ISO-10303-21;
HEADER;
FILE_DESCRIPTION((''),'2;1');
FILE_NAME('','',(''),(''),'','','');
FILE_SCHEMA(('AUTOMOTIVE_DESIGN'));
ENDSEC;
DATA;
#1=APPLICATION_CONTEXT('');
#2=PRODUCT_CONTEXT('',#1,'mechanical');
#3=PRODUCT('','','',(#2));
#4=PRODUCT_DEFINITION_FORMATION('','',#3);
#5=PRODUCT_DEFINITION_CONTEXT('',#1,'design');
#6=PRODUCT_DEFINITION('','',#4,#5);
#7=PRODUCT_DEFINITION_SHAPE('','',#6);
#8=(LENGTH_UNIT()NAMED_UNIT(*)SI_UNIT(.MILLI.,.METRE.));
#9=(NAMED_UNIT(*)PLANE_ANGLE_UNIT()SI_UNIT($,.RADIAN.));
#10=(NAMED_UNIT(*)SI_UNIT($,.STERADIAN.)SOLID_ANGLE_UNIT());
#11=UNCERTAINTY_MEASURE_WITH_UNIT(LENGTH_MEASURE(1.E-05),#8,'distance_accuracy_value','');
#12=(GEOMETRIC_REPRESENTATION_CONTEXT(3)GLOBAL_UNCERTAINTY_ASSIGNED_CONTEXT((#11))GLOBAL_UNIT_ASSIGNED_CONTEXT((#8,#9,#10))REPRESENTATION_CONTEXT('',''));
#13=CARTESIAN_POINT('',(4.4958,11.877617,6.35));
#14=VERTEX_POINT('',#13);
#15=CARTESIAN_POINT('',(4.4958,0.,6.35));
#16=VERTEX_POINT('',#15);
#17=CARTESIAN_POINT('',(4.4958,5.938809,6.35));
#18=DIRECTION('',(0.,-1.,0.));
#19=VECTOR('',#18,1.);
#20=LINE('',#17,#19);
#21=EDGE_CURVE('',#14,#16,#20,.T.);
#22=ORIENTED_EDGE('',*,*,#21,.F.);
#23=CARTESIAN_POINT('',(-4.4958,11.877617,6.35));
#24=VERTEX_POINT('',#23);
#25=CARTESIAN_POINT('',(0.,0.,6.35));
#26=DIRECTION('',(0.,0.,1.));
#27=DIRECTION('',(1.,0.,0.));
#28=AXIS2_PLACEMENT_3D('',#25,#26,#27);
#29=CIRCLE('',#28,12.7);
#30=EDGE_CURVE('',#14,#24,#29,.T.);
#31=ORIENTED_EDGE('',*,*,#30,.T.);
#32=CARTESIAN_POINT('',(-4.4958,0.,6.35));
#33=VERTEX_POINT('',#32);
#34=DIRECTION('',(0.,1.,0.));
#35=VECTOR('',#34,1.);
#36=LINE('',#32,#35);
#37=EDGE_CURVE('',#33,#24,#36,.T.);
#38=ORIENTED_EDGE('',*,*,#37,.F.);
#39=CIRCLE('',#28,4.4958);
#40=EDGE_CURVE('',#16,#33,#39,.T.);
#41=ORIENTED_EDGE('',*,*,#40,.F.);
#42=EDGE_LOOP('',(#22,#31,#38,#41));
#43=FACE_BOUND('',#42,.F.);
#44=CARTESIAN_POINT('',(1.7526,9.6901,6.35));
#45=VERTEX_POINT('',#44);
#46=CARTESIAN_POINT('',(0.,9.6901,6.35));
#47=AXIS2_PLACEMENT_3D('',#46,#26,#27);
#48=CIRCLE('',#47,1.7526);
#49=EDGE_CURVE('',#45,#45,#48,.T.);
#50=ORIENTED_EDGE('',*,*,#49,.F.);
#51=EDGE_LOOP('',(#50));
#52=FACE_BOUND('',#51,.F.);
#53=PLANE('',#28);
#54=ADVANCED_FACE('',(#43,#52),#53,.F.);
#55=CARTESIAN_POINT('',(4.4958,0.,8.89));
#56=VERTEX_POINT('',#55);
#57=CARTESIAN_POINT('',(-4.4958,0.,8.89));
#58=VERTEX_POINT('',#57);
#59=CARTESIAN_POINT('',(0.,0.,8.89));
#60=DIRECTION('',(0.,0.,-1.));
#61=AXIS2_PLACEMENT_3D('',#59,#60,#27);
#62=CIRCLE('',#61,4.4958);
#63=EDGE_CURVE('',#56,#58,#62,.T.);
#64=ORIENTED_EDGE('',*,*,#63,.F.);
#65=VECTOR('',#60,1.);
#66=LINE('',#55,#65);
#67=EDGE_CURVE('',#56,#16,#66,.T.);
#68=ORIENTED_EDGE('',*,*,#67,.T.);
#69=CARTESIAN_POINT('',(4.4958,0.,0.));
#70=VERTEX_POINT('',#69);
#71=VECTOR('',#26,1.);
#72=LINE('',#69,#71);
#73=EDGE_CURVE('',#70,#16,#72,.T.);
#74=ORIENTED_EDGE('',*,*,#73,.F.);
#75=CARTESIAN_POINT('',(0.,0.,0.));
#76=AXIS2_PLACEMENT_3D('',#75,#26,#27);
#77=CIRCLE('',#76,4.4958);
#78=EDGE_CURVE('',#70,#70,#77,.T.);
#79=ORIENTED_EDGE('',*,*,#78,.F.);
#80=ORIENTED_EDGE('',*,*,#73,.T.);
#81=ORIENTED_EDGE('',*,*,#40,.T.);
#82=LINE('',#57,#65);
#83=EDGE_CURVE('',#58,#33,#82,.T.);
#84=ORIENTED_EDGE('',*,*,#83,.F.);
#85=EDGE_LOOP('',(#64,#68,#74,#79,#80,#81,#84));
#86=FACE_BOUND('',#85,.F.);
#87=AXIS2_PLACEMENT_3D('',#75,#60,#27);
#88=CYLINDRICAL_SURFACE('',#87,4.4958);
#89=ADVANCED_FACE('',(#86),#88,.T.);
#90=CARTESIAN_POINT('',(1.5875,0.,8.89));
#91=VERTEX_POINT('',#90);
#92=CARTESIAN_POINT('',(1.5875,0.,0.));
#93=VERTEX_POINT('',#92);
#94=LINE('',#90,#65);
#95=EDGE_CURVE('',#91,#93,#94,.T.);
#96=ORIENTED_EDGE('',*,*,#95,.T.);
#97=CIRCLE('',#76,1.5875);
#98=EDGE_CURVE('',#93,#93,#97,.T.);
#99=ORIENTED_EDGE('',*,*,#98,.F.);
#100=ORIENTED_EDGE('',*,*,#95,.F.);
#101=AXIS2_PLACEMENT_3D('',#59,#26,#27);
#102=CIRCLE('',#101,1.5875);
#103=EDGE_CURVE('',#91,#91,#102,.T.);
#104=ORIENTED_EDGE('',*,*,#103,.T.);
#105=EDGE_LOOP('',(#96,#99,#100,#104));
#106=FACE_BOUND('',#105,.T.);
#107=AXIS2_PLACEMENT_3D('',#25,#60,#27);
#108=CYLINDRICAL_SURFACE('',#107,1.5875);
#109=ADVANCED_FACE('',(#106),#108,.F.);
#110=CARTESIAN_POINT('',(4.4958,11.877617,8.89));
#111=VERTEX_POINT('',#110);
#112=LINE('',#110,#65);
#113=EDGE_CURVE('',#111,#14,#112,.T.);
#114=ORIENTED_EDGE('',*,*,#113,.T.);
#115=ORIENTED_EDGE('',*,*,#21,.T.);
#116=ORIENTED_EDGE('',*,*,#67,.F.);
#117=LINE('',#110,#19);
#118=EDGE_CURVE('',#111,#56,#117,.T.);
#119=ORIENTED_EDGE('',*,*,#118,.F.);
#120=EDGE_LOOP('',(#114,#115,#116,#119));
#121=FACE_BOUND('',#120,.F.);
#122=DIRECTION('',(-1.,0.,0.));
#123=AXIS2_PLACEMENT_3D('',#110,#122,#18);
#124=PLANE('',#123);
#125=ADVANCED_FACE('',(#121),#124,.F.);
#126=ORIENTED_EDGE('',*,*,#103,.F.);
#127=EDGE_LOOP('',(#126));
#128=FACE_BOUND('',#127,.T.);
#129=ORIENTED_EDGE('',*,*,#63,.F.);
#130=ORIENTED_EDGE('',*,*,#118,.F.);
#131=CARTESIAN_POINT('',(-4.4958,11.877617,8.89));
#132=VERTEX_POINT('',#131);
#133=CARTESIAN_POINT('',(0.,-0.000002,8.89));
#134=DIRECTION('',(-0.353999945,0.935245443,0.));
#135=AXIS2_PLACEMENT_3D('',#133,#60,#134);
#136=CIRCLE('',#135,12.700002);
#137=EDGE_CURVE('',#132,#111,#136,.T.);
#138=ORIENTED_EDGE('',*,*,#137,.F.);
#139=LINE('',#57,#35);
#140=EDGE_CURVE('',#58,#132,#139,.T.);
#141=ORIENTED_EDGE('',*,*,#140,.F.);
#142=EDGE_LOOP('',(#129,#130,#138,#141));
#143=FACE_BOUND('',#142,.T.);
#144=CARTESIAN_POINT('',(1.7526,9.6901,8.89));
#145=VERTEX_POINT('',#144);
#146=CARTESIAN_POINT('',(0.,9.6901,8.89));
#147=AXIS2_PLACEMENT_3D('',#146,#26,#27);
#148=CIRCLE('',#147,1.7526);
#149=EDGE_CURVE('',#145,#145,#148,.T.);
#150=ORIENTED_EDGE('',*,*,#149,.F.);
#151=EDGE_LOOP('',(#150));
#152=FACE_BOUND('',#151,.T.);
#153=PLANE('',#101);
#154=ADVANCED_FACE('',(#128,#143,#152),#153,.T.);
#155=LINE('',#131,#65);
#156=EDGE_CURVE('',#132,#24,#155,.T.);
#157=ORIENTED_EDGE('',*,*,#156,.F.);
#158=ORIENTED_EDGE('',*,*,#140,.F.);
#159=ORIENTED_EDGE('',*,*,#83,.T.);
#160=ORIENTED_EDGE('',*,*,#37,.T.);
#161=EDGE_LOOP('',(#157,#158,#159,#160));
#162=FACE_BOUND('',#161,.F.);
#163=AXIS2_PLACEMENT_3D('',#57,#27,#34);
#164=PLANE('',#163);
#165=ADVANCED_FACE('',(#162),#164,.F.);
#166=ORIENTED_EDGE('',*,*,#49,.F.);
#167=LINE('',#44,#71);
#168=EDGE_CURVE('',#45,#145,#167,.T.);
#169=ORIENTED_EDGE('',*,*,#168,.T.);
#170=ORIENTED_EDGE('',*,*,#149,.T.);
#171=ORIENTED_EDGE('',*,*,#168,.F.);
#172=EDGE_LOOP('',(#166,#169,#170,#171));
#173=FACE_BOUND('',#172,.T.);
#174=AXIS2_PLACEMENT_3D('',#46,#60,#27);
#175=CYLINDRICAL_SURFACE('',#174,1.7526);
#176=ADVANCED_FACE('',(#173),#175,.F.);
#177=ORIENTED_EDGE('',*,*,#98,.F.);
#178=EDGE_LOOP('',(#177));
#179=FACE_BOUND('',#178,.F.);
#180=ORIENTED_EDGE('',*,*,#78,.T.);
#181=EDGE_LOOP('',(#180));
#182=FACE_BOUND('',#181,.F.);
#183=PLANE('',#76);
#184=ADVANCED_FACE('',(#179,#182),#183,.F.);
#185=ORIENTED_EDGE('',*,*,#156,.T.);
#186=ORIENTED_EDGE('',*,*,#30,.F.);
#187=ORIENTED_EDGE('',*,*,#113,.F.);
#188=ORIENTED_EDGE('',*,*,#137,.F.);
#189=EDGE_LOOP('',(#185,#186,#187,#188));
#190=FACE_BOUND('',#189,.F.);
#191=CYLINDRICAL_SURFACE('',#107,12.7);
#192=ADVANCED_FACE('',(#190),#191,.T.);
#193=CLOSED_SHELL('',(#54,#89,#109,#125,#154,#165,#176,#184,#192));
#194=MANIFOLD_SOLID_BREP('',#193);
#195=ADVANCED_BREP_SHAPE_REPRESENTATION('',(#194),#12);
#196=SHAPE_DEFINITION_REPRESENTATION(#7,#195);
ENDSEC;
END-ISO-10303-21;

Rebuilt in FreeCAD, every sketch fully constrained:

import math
import FreeCAD as App
import Part
import Sketcher
from FreeCAD import Vector
Q = App.Units.Quantity

doc = App.newDocument("Part")
body = doc.addObject("PartDesign::Body", "Body")

sketch1 = body.newObject("Sketcher::SketchObject", "Sketch")
sketch1.AttachmentSupport = (doc.getObject("XY_Plane"), [""])
sketch1.MapMode = "FlatFace"
sketch1.addGeometry([
    Part.Circle(Vector(0, 0, 0), Vector(0, 0, 1), 4.5),
    Part.Circle(Vector(0, 0, 0), Vector(0, 0, 1), 1.6),
], False)
sketch1.addConstraint([
    Sketcher.Constraint("Coincident", 0, 3, -1, 1),
    Sketcher.Constraint("Coincident", 1, 3, -1, 1),
    Sketcher.Constraint("Diameter", 0, Q("0.354 in")),
    Sketcher.Constraint("Diameter", 1, Q("0.125 in")),
])
pad1 = body.newObject("PartDesign::Pad", "Pad")
pad1.Profile = sketch1
pad1.Length = Q("0.25 in")

sketch2 = body.newObject("Sketcher::SketchObject", "Sketch001")
sketch2.AttachmentSupport = (doc.getObject("XY_Plane"), [""])
sketch2.MapMode = "FlatFace"
sketch2.AttachmentOffset = App.Placement(Vector(0, 0, 0.25 * 25.4), App.Rotation())
sketch2.addGeometry([
    Part.Circle(Vector(0, 0, 0), Vector(0, 0, 1), 12.7),
    Part.Circle(Vector(-8.4, -4.8, 0), Vector(0, 0, 1), 1.8),
    Part.Circle(Vector(0, -9.7, 0), Vector(0, 0, 1), 1.8),
    Part.Circle(Vector(8.4, -4.8, 0), Vector(0, 0, 1), 1.8),
    Part.Circle(Vector(-8.4, 4.8, 0), Vector(0, 0, 1), 1.8),
    Part.Circle(Vector(0, 0, 0), Vector(0, 0, 1), 1.6),
    Part.Circle(Vector(8.4, 4.8, 0), Vector(0, 0, 1), 1.8),
    Part.Circle(Vector(0, 9.7, 0), Vector(0, 0, 1), 1.8),
], False)
sketch2.addConstraint([
    Sketcher.Constraint("Coincident", 0, 3, -1, 1),
    Sketcher.Constraint("Coincident", 5, 3, -1, 1),
    Sketcher.Constraint("Equal", 1, 2),
    Sketcher.Constraint("Equal", 2, 3),
    Sketcher.Constraint("Equal", 3, 4),
    Sketcher.Constraint("Equal", 4, 6),
    Sketcher.Constraint("Equal", 6, 7),
    Sketcher.Constraint("Symmetric", 3, 3, 4, 3, -1, 1),
    Sketcher.Constraint("Symmetric", 1, 3, 6, 3, -1, 1),
    Sketcher.Constraint("Symmetric", 2, 3, 7, 3, -1, 1),
    Sketcher.Constraint("Symmetric", 1, 3, 3, 3, -2),
    Sketcher.Constraint("PointOnObject", 2, 3, -2),
    Sketcher.Constraint("Diameter", 0, Q("1 in")),
    Sketcher.Constraint("Diameter", 1, Q("0.138 in")),
    Sketcher.Constraint("Diameter", 5, Q("0.125 in")),
    Sketcher.Constraint("DistanceY", 2, 3, -1, 1, Q("0.3815 in")),
    Sketcher.Constraint("DistanceY", 1, 3, 4, 3, Q("0.3815 in")),
    Sketcher.Constraint("DistanceX", 1, 3, -1, 1, 8.391873),
])
pad2 = body.newObject("PartDesign::Pad", "Pad001")
pad2.Profile = sketch2
pad2.Length = Q("0.1 in")

sketch3 = body.newObject("Sketcher::SketchObject", "Sketch002")
sketch3.AttachmentSupport = (doc.getObject("XY_Plane"), [""])
sketch3.MapMode = "FlatFace"
sketch3.AttachmentOffset = App.Placement(Vector(0, 0, 0.35 * 25.4), App.Rotation())
sketch3.addGeometry([
    Part.LineSegment(Vector(-29.3, 24.1, 0), Vector(-29.3, -24.1, 0)),
    Part.LineSegment(Vector(-29.3, -24.1, 0), Vector(29.3, -24.1, 0)),
    Part.LineSegment(Vector(29.3, -24.1, 0), Vector(29.3, 24.1, 0)),
    Part.LineSegment(Vector(29.3, 24.1, 0), Vector(-29.3, 24.1, 0)),
    Part.LineSegment(Vector(4.5, 11.9, 0), Vector(4.5, 0, 0)),
    Part.ArcOfCircle(Part.Circle(Vector(0, 0, 0), Vector(0, 0, 1), 4.5), math.radians(180), math.radians(360)),
    Part.LineSegment(Vector(-4.5, 0, 0), Vector(-4.5, 11.9, 0)),
    Part.ArcOfCircle(Part.Circle(Vector(0, 0, 0), Vector(0, 0, 1), 12.7), math.radians(69), math.radians(111)),
], False)
sketch3.addConstraint([
    Sketcher.Constraint("Coincident", 0, 2, 1, 1),
    Sketcher.Constraint("Coincident", 1, 2, 2, 1),
    Sketcher.Constraint("Coincident", 2, 2, 3, 1),
    Sketcher.Constraint("Coincident", 3, 2, 0, 1),
    Sketcher.Constraint("Tangent", 4, 2, 5, 2),
    Sketcher.Constraint("Tangent", 5, 1, 6, 1),
    Sketcher.Constraint("Coincident", 6, 2, 7, 2),
    Sketcher.Constraint("Coincident", 7, 1, 4, 1),
    Sketcher.Constraint("Vertical", 0),
    Sketcher.Constraint("Horizontal", 1),
    Sketcher.Constraint("Vertical", 2),
    Sketcher.Constraint("Horizontal", 3),
    Sketcher.Constraint("Vertical", 4),
    Sketcher.Constraint("Vertical", 6),
    Sketcher.Constraint("Coincident", 5, 3, -1, 1),
    Sketcher.Constraint("Coincident", 7, 3, -1, 1),
    Sketcher.Constraint("Symmetric", 0, 2, 2, 2, -1, 1),
    Sketcher.Constraint("Radius", 7, Q("0.5000001 in")),
    Sketcher.Constraint("Radius", 5, Q("0.177 in")),
    Sketcher.Constraint("DistanceX", 1, 1, 1, 2, 58.600948),
    Sketcher.Constraint("DistanceY", 0, 2, 0, 1, 48.189808),
])
pocket1 = body.newObject("PartDesign::Pocket", "Pocket")
pocket1.Profile = sketch3
pocket1.Length = Q("1 in")

doc.recompute()
